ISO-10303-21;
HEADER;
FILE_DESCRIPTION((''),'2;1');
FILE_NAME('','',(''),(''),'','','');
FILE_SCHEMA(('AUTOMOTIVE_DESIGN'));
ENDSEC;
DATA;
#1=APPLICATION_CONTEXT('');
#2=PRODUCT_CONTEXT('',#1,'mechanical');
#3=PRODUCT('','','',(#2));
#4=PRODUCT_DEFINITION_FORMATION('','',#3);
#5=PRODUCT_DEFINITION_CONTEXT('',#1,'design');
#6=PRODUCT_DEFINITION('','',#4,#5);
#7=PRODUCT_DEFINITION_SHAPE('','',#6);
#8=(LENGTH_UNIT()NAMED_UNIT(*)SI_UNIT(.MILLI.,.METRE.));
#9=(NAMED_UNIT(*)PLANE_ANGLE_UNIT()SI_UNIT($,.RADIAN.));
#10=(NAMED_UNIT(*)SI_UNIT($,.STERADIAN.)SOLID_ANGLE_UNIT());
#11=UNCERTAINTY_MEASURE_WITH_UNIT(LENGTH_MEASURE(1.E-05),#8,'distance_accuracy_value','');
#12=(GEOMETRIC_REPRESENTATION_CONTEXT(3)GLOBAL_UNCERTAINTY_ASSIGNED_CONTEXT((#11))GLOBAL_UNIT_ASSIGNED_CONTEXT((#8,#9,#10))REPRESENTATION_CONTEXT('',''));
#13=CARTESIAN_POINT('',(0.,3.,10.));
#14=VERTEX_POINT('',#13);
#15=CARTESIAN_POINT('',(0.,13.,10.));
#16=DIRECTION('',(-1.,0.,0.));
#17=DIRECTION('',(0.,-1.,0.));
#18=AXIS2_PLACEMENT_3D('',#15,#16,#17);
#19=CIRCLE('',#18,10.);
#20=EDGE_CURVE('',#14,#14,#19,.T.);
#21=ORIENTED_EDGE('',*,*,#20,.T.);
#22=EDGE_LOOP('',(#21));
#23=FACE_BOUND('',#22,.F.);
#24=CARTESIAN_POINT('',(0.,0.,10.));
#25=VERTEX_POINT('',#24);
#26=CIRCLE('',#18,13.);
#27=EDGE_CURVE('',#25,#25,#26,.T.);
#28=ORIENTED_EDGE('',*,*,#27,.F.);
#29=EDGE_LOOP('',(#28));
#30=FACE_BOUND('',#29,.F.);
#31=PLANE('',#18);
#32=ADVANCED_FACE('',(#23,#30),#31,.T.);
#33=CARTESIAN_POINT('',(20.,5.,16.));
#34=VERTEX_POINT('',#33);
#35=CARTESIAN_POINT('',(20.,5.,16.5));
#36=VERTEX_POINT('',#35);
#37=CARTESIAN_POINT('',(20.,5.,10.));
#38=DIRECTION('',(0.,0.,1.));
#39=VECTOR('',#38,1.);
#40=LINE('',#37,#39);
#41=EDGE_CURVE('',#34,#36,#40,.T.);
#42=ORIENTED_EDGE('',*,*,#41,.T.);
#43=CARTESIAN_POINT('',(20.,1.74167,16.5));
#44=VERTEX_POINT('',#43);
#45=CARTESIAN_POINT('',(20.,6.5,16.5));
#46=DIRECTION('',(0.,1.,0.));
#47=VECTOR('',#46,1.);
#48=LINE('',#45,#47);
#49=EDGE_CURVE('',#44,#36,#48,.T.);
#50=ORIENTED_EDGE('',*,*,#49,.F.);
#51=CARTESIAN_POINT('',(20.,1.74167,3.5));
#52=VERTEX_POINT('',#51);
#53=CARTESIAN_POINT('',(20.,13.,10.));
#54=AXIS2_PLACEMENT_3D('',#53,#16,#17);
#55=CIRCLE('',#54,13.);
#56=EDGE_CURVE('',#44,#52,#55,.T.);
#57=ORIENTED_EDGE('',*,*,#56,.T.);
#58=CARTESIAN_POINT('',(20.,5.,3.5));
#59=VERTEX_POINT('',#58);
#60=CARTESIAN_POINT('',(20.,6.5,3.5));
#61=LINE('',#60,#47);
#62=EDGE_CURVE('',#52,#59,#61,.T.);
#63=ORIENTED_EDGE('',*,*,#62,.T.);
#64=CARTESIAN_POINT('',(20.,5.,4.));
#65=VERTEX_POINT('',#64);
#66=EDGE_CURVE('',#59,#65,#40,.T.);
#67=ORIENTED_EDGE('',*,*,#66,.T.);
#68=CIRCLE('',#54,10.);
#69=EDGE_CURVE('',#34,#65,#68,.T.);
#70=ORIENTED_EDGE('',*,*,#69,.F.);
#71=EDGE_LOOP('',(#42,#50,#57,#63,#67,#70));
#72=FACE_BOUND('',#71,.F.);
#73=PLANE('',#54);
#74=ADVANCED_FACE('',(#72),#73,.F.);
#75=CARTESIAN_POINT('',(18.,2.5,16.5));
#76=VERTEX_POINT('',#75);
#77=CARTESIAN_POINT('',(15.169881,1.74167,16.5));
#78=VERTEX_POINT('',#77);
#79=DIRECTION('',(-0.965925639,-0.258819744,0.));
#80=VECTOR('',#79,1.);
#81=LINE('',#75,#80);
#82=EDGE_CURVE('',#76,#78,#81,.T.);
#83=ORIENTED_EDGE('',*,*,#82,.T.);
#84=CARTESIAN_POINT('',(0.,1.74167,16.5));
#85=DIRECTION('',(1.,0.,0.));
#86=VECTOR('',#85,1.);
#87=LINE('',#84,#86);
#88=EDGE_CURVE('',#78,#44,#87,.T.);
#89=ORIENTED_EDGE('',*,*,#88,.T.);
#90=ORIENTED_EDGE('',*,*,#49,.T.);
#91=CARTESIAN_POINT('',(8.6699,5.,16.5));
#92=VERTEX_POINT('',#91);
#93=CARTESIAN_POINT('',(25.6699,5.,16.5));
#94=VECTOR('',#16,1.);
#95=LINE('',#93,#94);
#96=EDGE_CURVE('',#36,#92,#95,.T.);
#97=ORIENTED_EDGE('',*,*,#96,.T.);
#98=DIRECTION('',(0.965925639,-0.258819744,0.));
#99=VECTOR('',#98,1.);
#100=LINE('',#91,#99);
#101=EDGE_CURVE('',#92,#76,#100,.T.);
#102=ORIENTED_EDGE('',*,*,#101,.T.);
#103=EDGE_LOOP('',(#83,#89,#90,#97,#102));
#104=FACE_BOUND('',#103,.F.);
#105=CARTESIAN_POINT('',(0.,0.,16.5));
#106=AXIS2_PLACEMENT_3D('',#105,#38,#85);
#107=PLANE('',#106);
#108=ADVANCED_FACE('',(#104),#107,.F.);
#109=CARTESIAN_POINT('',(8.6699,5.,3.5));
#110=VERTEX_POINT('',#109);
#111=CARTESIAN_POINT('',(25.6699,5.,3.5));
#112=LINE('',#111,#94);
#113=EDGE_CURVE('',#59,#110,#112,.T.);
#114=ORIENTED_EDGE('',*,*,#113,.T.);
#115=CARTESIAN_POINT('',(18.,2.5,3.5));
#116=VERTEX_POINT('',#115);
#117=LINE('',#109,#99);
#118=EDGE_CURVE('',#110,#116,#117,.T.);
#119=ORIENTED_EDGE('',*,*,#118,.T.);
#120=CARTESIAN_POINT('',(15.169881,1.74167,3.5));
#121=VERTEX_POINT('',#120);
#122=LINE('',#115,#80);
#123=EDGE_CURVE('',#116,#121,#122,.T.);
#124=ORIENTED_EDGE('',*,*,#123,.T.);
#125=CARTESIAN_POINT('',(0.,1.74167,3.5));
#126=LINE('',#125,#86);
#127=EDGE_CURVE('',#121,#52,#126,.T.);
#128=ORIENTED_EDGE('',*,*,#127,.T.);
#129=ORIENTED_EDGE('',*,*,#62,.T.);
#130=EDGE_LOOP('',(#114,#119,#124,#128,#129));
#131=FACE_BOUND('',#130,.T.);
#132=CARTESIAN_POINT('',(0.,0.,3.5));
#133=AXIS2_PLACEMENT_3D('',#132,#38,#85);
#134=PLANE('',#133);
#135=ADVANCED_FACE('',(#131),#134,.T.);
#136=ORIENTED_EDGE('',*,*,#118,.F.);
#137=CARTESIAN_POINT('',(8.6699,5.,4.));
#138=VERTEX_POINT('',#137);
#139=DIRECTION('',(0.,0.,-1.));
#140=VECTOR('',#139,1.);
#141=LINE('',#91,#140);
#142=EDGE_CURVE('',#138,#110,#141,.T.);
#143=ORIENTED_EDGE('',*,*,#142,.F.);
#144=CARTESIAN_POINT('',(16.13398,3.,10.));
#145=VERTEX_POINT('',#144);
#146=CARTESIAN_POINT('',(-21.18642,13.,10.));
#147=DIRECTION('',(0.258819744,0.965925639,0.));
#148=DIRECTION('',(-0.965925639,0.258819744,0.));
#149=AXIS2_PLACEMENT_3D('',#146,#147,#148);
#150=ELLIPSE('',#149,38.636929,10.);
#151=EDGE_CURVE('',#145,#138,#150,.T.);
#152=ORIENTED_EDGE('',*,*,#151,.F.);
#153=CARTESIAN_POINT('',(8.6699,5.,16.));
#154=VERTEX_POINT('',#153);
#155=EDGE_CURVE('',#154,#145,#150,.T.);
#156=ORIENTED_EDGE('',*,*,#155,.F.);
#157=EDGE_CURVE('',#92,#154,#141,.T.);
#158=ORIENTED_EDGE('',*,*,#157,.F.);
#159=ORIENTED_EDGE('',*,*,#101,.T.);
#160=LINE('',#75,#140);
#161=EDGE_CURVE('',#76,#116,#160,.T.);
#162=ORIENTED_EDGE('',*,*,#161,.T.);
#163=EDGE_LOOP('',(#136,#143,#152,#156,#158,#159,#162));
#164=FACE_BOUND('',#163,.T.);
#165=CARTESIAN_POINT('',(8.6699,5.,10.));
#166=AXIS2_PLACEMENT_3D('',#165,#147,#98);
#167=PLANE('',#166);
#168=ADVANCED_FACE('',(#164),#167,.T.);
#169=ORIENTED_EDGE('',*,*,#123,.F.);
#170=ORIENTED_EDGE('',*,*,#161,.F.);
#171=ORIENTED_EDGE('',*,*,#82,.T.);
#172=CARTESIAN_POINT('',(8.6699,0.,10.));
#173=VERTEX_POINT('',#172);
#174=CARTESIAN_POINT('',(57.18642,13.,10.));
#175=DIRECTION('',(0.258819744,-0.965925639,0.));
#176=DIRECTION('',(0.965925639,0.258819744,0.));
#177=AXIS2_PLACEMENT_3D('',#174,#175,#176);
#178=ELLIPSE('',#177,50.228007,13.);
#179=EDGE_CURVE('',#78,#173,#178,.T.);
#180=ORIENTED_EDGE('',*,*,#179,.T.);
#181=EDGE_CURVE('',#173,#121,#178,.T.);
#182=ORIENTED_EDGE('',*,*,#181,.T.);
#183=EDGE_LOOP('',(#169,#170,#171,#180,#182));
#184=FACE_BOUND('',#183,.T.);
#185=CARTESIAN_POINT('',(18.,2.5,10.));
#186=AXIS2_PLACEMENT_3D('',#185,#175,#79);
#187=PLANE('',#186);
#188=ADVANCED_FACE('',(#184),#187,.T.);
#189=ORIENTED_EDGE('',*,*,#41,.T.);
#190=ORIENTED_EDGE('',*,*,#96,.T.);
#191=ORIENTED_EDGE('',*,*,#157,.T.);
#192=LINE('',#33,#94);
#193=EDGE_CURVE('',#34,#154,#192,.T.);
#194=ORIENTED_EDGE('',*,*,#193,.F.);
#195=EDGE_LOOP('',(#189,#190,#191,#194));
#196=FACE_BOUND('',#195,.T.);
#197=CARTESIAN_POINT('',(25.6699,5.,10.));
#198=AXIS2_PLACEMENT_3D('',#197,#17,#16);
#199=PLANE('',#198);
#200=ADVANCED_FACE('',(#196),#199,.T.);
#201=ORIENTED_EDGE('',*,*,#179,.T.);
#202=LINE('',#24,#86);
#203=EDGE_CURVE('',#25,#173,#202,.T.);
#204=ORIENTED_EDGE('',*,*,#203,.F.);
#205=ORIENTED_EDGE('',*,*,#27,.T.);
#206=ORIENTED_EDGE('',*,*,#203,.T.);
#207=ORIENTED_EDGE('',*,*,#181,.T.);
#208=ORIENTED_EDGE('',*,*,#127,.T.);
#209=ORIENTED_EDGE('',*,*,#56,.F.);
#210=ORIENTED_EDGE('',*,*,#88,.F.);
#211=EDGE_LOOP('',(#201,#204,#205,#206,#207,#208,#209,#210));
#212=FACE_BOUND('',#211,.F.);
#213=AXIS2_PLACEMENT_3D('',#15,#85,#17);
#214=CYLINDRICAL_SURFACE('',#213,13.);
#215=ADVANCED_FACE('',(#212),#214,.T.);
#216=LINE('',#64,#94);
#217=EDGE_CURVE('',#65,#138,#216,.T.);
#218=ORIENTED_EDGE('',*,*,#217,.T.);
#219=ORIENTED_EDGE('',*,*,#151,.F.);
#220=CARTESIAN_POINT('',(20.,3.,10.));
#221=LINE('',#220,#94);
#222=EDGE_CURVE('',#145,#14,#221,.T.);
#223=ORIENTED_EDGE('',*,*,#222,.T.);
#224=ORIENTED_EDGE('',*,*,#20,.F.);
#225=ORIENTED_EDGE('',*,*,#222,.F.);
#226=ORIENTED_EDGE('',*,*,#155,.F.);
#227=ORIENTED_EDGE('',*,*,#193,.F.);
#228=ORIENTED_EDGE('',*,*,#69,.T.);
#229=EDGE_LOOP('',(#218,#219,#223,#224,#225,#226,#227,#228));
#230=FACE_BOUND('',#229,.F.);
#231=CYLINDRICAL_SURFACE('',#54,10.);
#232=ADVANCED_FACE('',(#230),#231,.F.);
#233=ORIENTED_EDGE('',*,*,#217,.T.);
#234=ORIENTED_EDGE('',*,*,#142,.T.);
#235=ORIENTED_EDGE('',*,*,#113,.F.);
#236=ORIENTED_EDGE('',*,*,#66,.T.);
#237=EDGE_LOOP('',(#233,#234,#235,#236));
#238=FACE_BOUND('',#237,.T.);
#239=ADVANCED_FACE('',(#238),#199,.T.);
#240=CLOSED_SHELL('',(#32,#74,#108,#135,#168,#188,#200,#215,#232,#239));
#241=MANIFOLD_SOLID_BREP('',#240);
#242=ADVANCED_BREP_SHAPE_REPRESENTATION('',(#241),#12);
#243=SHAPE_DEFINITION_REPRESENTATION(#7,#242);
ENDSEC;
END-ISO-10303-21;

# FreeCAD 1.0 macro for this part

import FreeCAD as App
import Part
import Sketcher
Q = App.Units.Quantity


def add_polygon(sketch, points):
    """Adds a closed chain of lines whose ends are joined by coincident constraints."""
    first, n = sketch.GeometryCount, len(points)
    for a, b in zip(points, points[1:] + points[:1]):
        sketch.addGeometry(Part.LineSegment(App.Vector(*a, 0), App.Vector(*b, 0)), False)
    for i in range(n):
        sketch.addConstraint(Sketcher.Constraint("Coincident", first + i, 2, first + (i + 1) % n, 1))

doc = App.newDocument("Part")
body = doc.addObject("PartDesign::Body", "Body")

# Sketch on XY plane
sketch1 = body.newObject("Sketcher::SketchObject", "Sketch")
sketch1.AttachmentSupport = (doc.getObject("XY_Plane"), [""])
sketch1.MapMode = "FlatFace"
sketch1.AttachmentOffset = App.Placement(App.Vector(0, 0, 10), App.Rotation())
add_polygon(sketch1, [(0, 3), (0, 0), (20, 0), (20, 3)])  # lines 0-3
sketch1.addGeometry(Part.LineSegment(App.Vector(20, 13, 0), App.Vector(0, 13, 0)), True)  # axis
sketch1.addConstraint(Sketcher.Constraint("Vertical", 0))
sketch1.addConstraint(Sketcher.Constraint("Horizontal", 1))
sketch1.addConstraint(Sketcher.Constraint("Vertical", 2))
sketch1.addConstraint(Sketcher.Constraint("Horizontal", 3))
sketch1.addConstraint(Sketcher.Constraint("Horizontal", 4))
sketch1.addConstraint(Sketcher.Constraint("Coincident", 0, 2, -1, 1))
sketch1.addConstraint(Sketcher.Constraint("PointOnObject", 4, 2, -2))
sketch1.addConstraint(Sketcher.Constraint("Vertical", 2, 2, 4, 1))
sketch1.addConstraint(Sketcher.Constraint("DistanceX", 1, 1, 1, 2, 20.0))
sketch1.addConstraint(Sketcher.Constraint("DistanceY", 0, 2, 0, 1, 3.0))
sketch1.addConstraint(Sketcher.Constraint("DistanceY", 2, 2, 4, 1, 10.0))
revolution = body.newObject("PartDesign::Revolution", "Revolution")
revolution.Profile = sketch1
revolution.ReferenceAxis = (sketch1, ["Axis0"])
revolution.Angle = 360

# Sketch on XY plane
sketch2 = body.newObject("Sketcher::SketchObject", "Sketch001")
sketch2.AttachmentSupport = (doc.getObject("XY_Plane"), [""])
sketch2.MapMode = "FlatFace"
sketch2.AttachmentOffset = App.Placement(App.Vector(0, 0, 10), App.Rotation())
add_polygon(sketch2, [(18, 2), (9, 0), (26, 0), (26, 5), (9, 5)])  # lines 0-4
sketch2.addConstraint(Sketcher.Constraint("Horizontal", 1))
sketch2.addConstraint(Sketcher.Constraint("Vertical", 2))
sketch2.addConstraint(Sketcher.Constraint("Horizontal", 3))
sketch2.addConstraint(Sketcher.Constraint("PointOnObject", 0, 2, -1))
sketch2.addConstraint(Sketcher.Constraint("Vertical", 0, 2, 3, 2))
sketch2.addConstraint(Sketcher.Constraint("Equal", 0, 4))
sketch2.addConstraint(Sketcher.Constraint("DistanceX", 1, 1, 1, 2, 17.0))
sketch2.addConstraint(Sketcher.Constraint("DistanceY", 2, 1, 2, 2, 5.0))
sketch2.addConstraint(Sketcher.Constraint("Angle", 4, Q("-15 deg")))
sketch2.addConstraint(Sketcher.Constraint("DistanceX", -1, 1, 4, 2, 18.0))
pocket1 = body.newObject("PartDesign::Pocket", "Pocket")
pocket1.Profile = sketch2
pocket1.Length = 13
pocket1.Midplane = True

doc.recompute()
